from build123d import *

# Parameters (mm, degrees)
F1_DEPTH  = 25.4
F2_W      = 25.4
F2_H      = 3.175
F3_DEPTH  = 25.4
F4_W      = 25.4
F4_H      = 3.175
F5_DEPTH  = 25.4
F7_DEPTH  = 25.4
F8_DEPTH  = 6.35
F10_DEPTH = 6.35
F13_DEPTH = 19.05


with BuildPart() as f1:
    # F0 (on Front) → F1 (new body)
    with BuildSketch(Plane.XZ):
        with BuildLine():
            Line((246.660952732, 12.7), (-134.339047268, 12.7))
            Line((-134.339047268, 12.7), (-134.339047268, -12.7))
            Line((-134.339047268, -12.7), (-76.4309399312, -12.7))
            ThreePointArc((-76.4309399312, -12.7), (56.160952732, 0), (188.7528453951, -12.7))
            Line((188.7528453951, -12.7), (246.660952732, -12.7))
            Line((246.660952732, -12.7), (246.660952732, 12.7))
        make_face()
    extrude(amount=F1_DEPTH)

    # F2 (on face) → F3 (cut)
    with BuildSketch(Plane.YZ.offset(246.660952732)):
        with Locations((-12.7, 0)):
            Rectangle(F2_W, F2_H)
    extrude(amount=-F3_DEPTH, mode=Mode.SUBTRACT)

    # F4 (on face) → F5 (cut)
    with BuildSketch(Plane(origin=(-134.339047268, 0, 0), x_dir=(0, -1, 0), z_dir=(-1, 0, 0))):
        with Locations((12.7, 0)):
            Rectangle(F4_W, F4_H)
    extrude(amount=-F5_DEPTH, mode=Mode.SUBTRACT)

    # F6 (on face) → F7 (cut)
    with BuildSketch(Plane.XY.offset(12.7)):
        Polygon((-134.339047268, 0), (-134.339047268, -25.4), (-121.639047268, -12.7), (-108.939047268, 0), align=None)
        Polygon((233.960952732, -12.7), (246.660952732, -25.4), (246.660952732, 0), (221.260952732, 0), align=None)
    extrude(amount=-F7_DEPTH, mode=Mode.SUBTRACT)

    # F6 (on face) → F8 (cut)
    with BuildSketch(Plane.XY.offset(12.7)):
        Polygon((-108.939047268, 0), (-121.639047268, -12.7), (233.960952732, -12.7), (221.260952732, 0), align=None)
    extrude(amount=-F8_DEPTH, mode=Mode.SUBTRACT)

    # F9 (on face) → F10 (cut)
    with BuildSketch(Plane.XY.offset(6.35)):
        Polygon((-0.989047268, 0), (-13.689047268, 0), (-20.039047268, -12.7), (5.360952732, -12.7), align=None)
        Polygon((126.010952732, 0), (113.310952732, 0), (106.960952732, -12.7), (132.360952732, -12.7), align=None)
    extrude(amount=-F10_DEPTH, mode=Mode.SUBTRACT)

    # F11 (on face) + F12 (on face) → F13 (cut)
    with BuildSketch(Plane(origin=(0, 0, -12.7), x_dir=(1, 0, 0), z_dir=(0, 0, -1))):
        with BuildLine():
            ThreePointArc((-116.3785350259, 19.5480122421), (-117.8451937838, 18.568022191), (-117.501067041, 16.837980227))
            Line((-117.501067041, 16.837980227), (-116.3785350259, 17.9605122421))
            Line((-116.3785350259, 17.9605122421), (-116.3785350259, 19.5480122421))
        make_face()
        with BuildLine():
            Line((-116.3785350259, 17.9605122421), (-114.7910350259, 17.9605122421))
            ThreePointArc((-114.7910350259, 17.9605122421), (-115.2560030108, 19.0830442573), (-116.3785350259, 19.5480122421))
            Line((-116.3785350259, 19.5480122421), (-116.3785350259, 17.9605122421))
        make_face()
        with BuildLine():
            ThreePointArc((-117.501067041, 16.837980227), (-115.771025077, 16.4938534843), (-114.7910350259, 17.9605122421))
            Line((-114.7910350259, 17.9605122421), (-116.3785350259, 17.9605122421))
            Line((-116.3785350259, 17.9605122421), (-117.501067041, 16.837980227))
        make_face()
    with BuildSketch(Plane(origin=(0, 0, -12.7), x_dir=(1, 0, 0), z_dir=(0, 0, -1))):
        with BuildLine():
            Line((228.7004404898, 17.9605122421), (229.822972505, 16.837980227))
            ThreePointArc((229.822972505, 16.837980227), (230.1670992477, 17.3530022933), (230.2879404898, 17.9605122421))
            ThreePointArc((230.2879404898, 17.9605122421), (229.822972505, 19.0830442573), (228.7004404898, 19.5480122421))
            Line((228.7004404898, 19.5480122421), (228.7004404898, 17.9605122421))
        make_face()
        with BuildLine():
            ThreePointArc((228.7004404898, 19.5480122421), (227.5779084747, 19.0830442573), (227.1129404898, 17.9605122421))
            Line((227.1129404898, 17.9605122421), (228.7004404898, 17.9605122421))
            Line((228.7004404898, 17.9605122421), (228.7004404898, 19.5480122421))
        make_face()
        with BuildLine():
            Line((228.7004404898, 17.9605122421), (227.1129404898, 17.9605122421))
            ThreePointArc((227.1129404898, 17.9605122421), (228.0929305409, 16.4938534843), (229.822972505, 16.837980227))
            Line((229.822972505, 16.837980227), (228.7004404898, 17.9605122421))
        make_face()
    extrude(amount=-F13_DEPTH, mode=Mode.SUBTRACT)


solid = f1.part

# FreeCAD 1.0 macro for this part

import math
import FreeCAD as App
import Part
import Sketcher
Q = App.Units.Quantity


def add_polygon(sketch, points):
    """Adds a closed chain of lines whose ends are joined by coincident constraints."""
    first, n = sketch.GeometryCount, len(points)
    for a, b in zip(points, points[1:] + points[:1]):
        sketch.addGeometry(Part.LineSegment(App.Vector(*a, 0), App.Vector(*b, 0)), False)
    for i in range(n):
        sketch.addConstraint(Sketcher.Constraint("Coincident", first + i, 2, first + (i + 1) % n, 1))

doc = App.newDocument("Part")
body = doc.addObject("PartDesign::Body", "Body")

# Sketch on XZ plane
sketch1 = body.newObject("Sketcher::SketchObject", "Sketch")
sketch1.AttachmentSupport = (doc.getObject("XZ_Plane"), [""])
sketch1.MapMode = "FlatFace"
sketch1.addGeometry([
    Part.LineSegment(App.Vector(247, 13, 0), App.Vector(-134, 13, 0)),  # 0
    Part.LineSegment(App.Vector(-134, 13, 0), App.Vector(-134, -13, 0)),  # 1
    Part.LineSegment(App.Vector(-134, -13, 0), App.Vector(-76, -13, 0)),  # 2
    Part.ArcOfCircle(Part.Circle(App.Vector(56, -698, 0), App.Vector(0, 0, 1), 698), math.radians(79), math.radians(101)),  # 3
    Part.LineSegment(App.Vector(189, -13, 0), App.Vector(247, -13, 0)),  # 4
    Part.LineSegment(App.Vector(247, -13, 0), App.Vector(247, 13, 0)),  # 5
], False)
sketch1.addConstraint([
    Sketcher.Constraint("Coincident", 0, 2, 1, 1),
    Sketcher.Constraint("Coincident", 1, 2, 2, 1),
    Sketcher.Constraint("Coincident", 2, 2, 3, 2),
    Sketcher.Constraint("Coincident", 3, 1, 4, 1),
    Sketcher.Constraint("Coincident", 4, 2, 5, 1),
    Sketcher.Constraint("Coincident", 5, 2, 0, 1),
    Sketcher.Constraint("Horizontal", 0),
    Sketcher.Constraint("Vertical", 1),
    Sketcher.Constraint("Horizontal", 2),
    Sketcher.Constraint("Horizontal", 4),
    Sketcher.Constraint("Vertical", 5),
    Sketcher.Constraint("Horizontal", 2, 2, 3, 1),
    Sketcher.Constraint("Equal", 2, 4),
    Sketcher.Constraint("Radius", 3, Q("27.5 in")),
    Sketcher.Constraint("DistanceX", 0, 2, 0, 1, Q("15 in")),
    Sketcher.Constraint("DistanceY", 1, 2, 1, 1, Q("1 in")),
    Sketcher.Constraint("DistanceY", 3, 3, 0, 2, Q("28 in")),
    Sketcher.Constraint("DistanceY", 3, 3, -1, 1, Q("27.5 in")),
    Sketcher.Constraint("DistanceX", 2, 2, -1, 1, Q("76.43094 mm")),
])
pad1 = body.newObject("PartDesign::Pad", "Pad")
pad1.Profile = sketch1
pad1.Length = Q("1 in")

# Sketch on YZ plane
sketch2 = body.newObject("Sketcher::SketchObject", "Sketch001")
sketch2.AttachmentSupport = (doc.getObject("YZ_Plane"), [""])
sketch2.MapMode = "FlatFace"
sketch2.AttachmentOffset = App.Placement(App.Vector(0, 0, 246.660953), App.Rotation())
add_polygon(sketch2, [(-25.4, 1.6), (-25.4, -1.6), (0, -1.6), (0, 1.6)])  # lines 0-3
sketch2.addConstraint([
    Sketcher.Constraint("Vertical", 0),
    Sketcher.Constraint("Horizontal", 1),
    Sketcher.Constraint("Vertical", 2),
    Sketcher.Constraint("Horizontal", 3),
    Sketcher.Constraint("Symmetric", 1, 2, 2, 2, -1, 1),
    Sketcher.Constraint("DistanceX", 1, 1, 1, 2, Q("1 in")),
    Sketcher.Constraint("DistanceY", 0, 2, 0, 1, Q("0.125 in")),
])
pocket1 = body.newObject("PartDesign::Pocket", "Pocket")
pocket1.Profile = sketch2
pocket1.Length = Q("1 in")

# Sketch on YZ plane
sketch3 = body.newObject("Sketcher::SketchObject", "Sketch002")
sketch3.AttachmentSupport = (doc.getObject("YZ_Plane"), [""])
sketch3.MapMode = "FlatFace"
sketch3.AttachmentOffset = App.Placement(App.Vector(0, 0, -134.339047), App.Rotation())
add_polygon(sketch3, [(0, 1.6), (0, -1.6), (-25.4, -1.6), (-25.4, 1.6)])  # lines 0-3
sketch3.addConstraint([
    Sketcher.Constraint("Vertical", 0),
    Sketcher.Constraint("Horizontal", 1),
    Sketcher.Constraint("Vertical", 2),
    Sketcher.Constraint("Horizontal", 3),
    Sketcher.Constraint("Symmetric", 0, 2, 3, 2, -1, 1),
    Sketcher.Constraint("DistanceX", 1, 2, 1, 1, Q("1 in")),
    Sketcher.Constraint("DistanceY", 0, 2, 0, 1, Q("0.125 in")),
])
pocket2 = body.newObject("PartDesign::Pocket", "Pocket001")
pocket2.Profile = sketch3
pocket2.Length = Q("1 in")
pocket2.Reversed = True

# Sketch on XY plane
sketch4 = body.newObject("Sketcher::SketchObject", "Sketch003")
sketch4.AttachmentSupport = (doc.getObject("XY_Plane"), [""])
sketch4.MapMode = "FlatFace"
sketch4.AttachmentOffset = App.Placement(App.Vector(0, 0, 0.5 * 25.4), App.Rotation())
add_polygon(sketch4, [(-134, 0), (-134, -25), (-109, 0)])  # lines 0-2
add_polygon(sketch4, [(247, -25), (247, 0), (221, 0)])  # lines 3-5
sketch4.addConstraint([
    Sketcher.Constraint("Vertical", 0),
    Sketcher.Constraint("Horizontal", 2),
    Sketcher.Constraint("Vertical", 3),
    Sketcher.Constraint("Horizontal", 4),
    Sketcher.Constraint("PointOnObject", 1, 2, -1),
    Sketcher.Constraint("PointOnObject", 3, 2, -1),
    Sketcher.Constraint("Perpendicular", 1, 5),
    Sketcher.Constraint("Horizontal", 0, 2, 5, 2),
    Sketcher.Constraint("Equal", 2, 4),
    Sketcher.Constraint("DistanceX", 2, 2, 2, 1, Q("1 in")),
    Sketcher.Constraint("DistanceX", 1, 2, 3, 2, Q("14 in")),
    Sketcher.Constraint("DistanceX", 0, 2, -1, 1, Q("134.339047 mm")),
])
pocket3 = body.newObject("PartDesign::Pocket", "Pocket002")
pocket3.Profile = sketch4
pocket3.Length = Q("1 in")

# Sketch on XY plane
sketch5 = body.newObject("Sketcher::SketchObject", "Sketch004")
sketch5.AttachmentSupport = (doc.getObject("XY_Plane"), [""])
sketch5.MapMode = "FlatFace"
sketch5.AttachmentOffset = App.Placement(App.Vector(0, 0, 0.5 * 25.4), App.Rotation())
add_polygon(sketch5, [(-109, 0), (-122, -13), (234, -13), (221, 0)])  # lines 0-3
sketch5.addConstraint([
    Sketcher.Constraint("Horizontal", 1),
    Sketcher.Constraint("Horizontal", 3),
    Sketcher.Constraint("PointOnObject", 2, 2, -1),
    Sketcher.Constraint("Perpendicular", 0, 2),
    Sketcher.Constraint("Equal", 0, 2),
    Sketcher.Constraint("DistanceX", 1, 1, 1, 2, Q("14 in")),
    Sketcher.Constraint("DistanceX", 3, 2, 3, 1, Q("13 in")),
    Sketcher.Constraint("DistanceX", 0, 2, -1, 1, Q("121.639047 mm")),
])
pocket4 = body.newObject("PartDesign::Pocket", "Pocket003")
pocket4.Profile = sketch5
pocket4.Length = Q("0.25 in")

# Sketch on XY plane
sketch6 = body.newObject("Sketcher::SketchObject", "Sketch005")
sketch6.AttachmentSupport = (doc.getObject("XY_Plane"), [""])
sketch6.MapMode = "FlatFace"
sketch6.AttachmentOffset = App.Placement(App.Vector(0, 0, 0.25 * 25.4), App.Rotation())
add_polygon(sketch6, [(-1, 0), (-14, 0), (-20, -13), (5, -13)])  # lines 0-3
add_polygon(sketch6, [(126, 0), (113, 0), (107, -13), (132, -13)])  # lines 4-7
sketch6.addConstraint([
    Sketcher.Constraint("Horizontal", 0),
    Sketcher.Constraint("Horizontal", 2),
    Sketcher.Constraint("Horizontal", 4),
    Sketcher.Constraint("Horizontal", 6),
    Sketcher.Constraint("PointOnObject", 0, 2, -1),
    Sketcher.Constraint("PointOnObject", 4, 2, -1),
    Sketcher.Constraint("Parallel", 1, 5),
    Sketcher.Constraint("Parallel", 3, 7),
    Sketcher.Constraint("Horizontal", 2, 2, 5, 2),
    Sketcher.Constraint("Equal", 0, 4),
    Sketcher.Constraint("Equal", 1, 3),
    Sketcher.Constraint("DistanceX", 2, 1, 2, 2, Q("1 in")),
    Sketcher.Constraint("DistanceX", 0, 2, 0, 1, Q("0.5 in")),
    Sketcher.Constraint("DistanceX", 0, 2, 4, 2, Q("5 in")),
    Sketcher.Constraint("DistanceY", 1, 2, -1, 1, Q("0.5 in")),
    Sketcher.Constraint("DistanceX", 0, 2, -1, 1, Q("13.689047 mm")),
])
pocket5 = body.newObject("PartDesign::Pocket", "Pocket004")
pocket5.Profile = sketch6
pocket5.Length = Q("0.25 in")

# Sketch on XY plane
sketch7 = body.newObject("Sketcher::SketchObject", "Sketch006")
sketch7.AttachmentSupport = (doc.getObject("XY_Plane"), [""])
sketch7.MapMode = "FlatFace"
sketch7.AttachmentOffset = App.Placement(App.Vector(0, 0, -0.5 * 25.4), App.Rotation())
sketch7.addGeometry([
    Part.ArcOfCircle(Part.Circle(App.Vector(-116.4, -18, 0), App.Vector(0, 0, 1), 1.6), math.radians(135), math.radians(270)),  # 0
    Part.ArcOfCircle(Part.Circle(App.Vector(-116.4, -18, 0), App.Vector(0, 0, 1), 1.6), math.radians(0), math.radians(135)),  # 1
    Part.ArcOfCircle(Part.Circle(App.Vector(-116.4, -18, 0), App.Vector(0, 0, 1), 1.6), math.radians(-90), math.radians(0)),  # 2
    Part.ArcOfCircle(Part.Circle(App.Vector(228.7, -18, 0), App.Vector(0, 0, 1), 1.6), math.radians(0), math.radians(45)),  # 3
    Part.ArcOfCircle(Part.Circle(App.Vector(228.7, -18, 0), App.Vector(0, 0, 1), 1.6), math.radians(-90), math.radians(0)),  # 4
    Part.ArcOfCircle(Part.Circle(App.Vector(228.7, -18, 0), App.Vector(0, 0, 1), 1.6), math.radians(180), math.radians(270)),  # 5
    Part.ArcOfCircle(Part.Circle(App.Vector(228.7, -18, 0), App.Vector(0, 0, 1), 1.6), math.radians(45), math.radians(180)),  # 6
], False)
sketch7.addConstraint([
    Sketcher.Constraint("Tangent", 0, 1, 1, 2),
    Sketcher.Constraint("Tangent", 1, 1, 2, 2),
    Sketcher.Constraint("Tangent", 2, 1, 0, 2),
    Sketcher.Constraint("Tangent", 3, 1, 4, 2),
    Sketcher.Constraint("Tangent", 4, 1, 5, 2),
    Sketcher.Constraint("Tangent", 5, 1, 6, 2),
    Sketcher.Constraint("Tangent", 6, 1, 3, 2),
    Sketcher.Constraint("Equal", 2, 3),
    Sketcher.Constraint("Equal", 3, 4),
    Sketcher.Constraint("Horizontal", 2, 3, 3, 3),
    Sketcher.Constraint("Horizontal", 6, 3, 1, 1),
    Sketcher.Constraint("Horizontal", 1, 1, 3, 1),
    Sketcher.Constraint("Horizontal", 3, 1, 5, 1),
    Sketcher.Constraint("Horizontal", 0, 1, 6, 1),
    Sketcher.Constraint("Vertical", 1, 3, 2, 1),
    Sketcher.Constraint("Vertical", 6, 3, 4, 1),
    Sketcher.Constraint("Radius", 0, Q("0.0625 in")),
    Sketcher.Constraint("DistanceX", -1, 1, 3, 3, Q("228.70044 mm")),
    Sketcher.Constraint("DistanceY", 0, 1, -1, 1, Q("16.83798 mm")),
    Sketcher.Constraint("DistanceX", 0, 3, -1, 1, Q("116.378535 mm")),
    Sketcher.Constraint("DistanceY", 0, 3, -1, 1, Q("17.960512 mm")),
])
pocket6 = body.newObject("PartDesign::Pocket", "Pocket005")
pocket6.Profile = sketch7
pocket6.Length = Q("0.75 in")
pocket6.Reversed = True

doc.recompute()
